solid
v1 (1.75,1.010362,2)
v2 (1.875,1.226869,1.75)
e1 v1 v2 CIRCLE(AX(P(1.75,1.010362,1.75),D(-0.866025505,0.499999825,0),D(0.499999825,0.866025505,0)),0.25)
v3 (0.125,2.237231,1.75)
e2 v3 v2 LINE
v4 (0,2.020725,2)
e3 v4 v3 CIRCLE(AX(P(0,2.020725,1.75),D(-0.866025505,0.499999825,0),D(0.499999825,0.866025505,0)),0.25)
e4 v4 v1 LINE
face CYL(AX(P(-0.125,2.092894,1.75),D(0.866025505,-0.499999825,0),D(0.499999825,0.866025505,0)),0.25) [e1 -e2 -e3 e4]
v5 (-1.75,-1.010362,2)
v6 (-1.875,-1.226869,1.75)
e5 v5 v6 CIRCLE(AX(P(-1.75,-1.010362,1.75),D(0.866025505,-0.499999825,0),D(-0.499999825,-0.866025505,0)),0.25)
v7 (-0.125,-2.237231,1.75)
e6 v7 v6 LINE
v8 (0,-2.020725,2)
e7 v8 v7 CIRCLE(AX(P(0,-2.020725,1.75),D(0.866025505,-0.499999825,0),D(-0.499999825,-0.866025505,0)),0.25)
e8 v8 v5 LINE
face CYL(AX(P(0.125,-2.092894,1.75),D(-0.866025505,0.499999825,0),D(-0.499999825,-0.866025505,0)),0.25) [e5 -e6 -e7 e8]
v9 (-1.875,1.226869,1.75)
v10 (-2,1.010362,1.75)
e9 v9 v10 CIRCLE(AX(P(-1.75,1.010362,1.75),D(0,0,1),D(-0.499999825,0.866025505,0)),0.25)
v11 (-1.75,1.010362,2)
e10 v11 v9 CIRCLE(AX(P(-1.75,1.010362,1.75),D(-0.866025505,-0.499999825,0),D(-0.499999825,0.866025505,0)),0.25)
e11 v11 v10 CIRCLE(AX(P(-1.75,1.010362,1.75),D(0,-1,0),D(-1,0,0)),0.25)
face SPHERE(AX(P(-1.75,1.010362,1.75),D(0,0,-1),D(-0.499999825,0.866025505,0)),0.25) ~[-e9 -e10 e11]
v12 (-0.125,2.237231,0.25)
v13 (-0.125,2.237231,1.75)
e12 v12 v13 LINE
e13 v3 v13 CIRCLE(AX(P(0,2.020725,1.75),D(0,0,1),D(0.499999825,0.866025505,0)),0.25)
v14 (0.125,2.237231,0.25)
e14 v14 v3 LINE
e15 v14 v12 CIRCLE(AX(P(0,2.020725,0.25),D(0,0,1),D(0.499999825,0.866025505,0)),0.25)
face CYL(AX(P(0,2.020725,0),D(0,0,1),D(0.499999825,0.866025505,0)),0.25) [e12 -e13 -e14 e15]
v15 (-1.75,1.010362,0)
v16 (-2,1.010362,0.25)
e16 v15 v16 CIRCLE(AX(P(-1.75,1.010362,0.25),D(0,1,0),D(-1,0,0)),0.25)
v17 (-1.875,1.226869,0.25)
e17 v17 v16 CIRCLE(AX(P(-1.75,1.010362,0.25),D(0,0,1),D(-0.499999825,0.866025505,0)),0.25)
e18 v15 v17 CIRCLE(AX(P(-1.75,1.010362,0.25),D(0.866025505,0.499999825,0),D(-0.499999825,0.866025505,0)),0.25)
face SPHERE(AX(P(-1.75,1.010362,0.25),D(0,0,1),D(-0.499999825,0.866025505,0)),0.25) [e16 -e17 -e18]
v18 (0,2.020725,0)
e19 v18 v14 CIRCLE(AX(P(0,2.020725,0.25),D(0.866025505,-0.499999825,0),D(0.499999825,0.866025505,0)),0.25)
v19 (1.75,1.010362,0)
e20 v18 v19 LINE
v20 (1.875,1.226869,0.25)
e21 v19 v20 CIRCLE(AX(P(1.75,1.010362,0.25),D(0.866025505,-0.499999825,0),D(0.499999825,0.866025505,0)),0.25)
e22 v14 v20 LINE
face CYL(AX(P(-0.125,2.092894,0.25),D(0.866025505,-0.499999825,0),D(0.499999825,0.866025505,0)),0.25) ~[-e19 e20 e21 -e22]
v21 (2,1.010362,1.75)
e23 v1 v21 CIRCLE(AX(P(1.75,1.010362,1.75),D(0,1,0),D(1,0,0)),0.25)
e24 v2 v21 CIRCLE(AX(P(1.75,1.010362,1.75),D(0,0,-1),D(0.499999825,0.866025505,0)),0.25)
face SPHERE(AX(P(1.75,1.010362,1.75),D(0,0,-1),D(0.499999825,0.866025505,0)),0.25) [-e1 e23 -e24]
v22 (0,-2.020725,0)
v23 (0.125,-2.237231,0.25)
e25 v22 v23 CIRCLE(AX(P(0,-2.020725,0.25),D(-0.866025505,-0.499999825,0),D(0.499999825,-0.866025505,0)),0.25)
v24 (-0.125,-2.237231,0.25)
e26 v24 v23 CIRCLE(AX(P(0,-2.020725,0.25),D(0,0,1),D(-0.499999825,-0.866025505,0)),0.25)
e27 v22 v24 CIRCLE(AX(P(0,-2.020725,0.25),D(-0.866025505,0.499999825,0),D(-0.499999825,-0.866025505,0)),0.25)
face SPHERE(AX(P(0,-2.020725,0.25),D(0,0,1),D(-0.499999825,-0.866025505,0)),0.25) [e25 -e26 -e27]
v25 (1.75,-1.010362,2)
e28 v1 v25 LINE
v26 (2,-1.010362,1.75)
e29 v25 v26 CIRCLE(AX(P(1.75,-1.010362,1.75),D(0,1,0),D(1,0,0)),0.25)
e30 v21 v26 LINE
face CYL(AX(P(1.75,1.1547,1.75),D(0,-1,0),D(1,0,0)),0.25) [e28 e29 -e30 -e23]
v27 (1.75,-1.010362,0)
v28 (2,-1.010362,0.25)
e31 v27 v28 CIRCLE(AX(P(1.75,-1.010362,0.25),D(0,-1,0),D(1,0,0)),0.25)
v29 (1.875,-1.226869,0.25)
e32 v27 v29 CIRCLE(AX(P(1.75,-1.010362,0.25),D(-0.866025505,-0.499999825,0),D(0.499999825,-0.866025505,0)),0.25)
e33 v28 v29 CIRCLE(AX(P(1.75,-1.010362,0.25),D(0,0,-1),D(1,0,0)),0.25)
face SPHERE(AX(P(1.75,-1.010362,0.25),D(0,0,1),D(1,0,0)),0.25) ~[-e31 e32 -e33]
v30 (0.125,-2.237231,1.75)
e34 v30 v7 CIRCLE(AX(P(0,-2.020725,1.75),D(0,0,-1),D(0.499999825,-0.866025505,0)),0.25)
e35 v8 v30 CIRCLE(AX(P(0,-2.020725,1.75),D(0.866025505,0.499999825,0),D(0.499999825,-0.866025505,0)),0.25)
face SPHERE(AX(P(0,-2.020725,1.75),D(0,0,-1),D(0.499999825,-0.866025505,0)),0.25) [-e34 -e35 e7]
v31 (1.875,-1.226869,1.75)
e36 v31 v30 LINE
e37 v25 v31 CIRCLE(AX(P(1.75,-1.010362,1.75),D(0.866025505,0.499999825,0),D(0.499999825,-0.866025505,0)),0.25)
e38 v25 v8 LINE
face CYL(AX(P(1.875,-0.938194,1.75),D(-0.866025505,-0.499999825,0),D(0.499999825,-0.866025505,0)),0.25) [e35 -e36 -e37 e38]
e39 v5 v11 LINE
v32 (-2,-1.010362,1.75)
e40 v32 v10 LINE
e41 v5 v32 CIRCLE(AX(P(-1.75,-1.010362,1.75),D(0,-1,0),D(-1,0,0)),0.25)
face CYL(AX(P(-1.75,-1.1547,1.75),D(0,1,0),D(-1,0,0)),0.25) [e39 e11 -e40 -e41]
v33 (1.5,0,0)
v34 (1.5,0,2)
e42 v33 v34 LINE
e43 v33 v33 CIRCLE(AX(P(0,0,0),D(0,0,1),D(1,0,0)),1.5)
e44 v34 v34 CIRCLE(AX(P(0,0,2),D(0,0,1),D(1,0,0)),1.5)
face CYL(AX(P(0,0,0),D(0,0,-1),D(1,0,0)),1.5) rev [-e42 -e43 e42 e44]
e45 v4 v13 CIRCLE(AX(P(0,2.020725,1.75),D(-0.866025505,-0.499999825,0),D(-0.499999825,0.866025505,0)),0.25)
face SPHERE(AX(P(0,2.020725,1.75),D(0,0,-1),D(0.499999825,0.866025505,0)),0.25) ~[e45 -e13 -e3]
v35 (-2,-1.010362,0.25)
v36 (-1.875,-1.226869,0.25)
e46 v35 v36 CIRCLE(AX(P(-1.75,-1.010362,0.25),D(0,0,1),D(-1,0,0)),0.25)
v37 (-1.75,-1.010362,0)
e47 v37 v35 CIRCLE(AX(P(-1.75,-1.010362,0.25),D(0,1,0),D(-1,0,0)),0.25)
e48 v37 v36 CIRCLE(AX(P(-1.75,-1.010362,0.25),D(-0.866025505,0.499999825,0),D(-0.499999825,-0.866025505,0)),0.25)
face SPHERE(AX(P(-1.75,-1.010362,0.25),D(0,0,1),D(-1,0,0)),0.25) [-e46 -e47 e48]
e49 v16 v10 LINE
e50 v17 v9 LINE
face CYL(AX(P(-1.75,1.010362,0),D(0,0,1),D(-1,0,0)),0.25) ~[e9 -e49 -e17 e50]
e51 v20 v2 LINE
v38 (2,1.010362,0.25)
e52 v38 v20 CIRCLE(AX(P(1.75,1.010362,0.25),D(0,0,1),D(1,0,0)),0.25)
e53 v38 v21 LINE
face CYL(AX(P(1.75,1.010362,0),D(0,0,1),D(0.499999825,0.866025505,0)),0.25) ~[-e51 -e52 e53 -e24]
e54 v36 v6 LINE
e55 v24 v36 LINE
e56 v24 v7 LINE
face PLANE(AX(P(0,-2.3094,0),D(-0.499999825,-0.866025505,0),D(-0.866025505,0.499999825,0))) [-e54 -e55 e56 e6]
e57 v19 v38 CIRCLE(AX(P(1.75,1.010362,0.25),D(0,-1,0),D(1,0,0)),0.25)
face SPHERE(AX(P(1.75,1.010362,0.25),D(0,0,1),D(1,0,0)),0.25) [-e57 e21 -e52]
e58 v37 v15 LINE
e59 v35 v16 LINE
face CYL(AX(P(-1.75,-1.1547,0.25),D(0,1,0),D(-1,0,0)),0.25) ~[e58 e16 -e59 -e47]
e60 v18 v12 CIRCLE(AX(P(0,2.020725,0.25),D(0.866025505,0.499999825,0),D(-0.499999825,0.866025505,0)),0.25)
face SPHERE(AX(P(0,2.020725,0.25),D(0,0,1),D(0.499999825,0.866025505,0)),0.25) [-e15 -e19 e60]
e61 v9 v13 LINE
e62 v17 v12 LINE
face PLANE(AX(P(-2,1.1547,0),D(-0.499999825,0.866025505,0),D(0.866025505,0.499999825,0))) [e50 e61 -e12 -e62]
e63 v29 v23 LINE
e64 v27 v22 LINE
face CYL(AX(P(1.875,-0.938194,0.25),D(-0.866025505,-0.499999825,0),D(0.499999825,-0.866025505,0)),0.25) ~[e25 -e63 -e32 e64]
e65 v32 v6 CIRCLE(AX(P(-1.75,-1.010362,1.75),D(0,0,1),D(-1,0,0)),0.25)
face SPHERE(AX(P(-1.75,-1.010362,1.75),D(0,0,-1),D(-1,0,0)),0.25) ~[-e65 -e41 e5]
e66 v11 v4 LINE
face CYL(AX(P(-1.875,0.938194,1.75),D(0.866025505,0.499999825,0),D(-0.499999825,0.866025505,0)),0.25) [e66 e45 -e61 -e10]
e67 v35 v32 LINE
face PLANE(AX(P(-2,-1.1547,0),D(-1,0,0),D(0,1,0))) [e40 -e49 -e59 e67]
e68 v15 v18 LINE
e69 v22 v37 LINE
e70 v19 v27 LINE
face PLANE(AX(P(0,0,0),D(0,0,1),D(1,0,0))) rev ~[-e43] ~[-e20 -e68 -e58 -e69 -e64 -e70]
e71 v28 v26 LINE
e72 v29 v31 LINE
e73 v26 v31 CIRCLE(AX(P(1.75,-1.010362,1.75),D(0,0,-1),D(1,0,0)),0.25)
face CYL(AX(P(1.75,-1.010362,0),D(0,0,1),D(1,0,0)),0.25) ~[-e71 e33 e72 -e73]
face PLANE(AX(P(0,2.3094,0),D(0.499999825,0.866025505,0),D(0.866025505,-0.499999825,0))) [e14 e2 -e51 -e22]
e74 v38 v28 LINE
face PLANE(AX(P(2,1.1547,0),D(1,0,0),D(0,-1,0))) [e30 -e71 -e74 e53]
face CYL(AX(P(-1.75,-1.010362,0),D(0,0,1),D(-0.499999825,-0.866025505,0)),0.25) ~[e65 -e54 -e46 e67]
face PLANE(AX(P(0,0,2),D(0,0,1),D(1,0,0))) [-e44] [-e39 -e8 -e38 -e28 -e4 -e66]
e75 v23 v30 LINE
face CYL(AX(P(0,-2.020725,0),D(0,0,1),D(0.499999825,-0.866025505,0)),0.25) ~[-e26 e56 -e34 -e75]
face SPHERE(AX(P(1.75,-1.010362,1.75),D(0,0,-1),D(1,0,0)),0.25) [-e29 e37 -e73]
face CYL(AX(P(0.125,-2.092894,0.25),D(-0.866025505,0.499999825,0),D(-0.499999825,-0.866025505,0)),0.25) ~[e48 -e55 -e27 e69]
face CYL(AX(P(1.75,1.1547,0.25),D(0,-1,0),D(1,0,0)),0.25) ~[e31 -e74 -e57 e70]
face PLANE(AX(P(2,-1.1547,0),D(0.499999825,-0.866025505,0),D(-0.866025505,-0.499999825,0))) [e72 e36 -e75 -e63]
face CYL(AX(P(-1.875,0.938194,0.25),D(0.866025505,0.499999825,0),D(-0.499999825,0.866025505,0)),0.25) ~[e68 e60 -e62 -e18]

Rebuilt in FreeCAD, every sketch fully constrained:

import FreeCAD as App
import Part
import Sketcher
Q = App.Units.Quantity


def edges_at(feature, points):
    """Names of the edges that pass closest to the given points."""
    edges = feature.Shape.Edges
    near = lambda p: min(range(len(edges)), key=lambda i: edges[i].distToShape(Part.Vertex(*p))[0])
    return sorted({f"Edge{near(p) + 1}" for p in points})

doc = App.newDocument("Part")
body = doc.addObject("PartDesign::Body", "Body")

sketch1 = doc.addObject("Sketcher::SketchObject", "Sketch")
body.addObject(sketch1)
sketch1.AttachmentSupport = (doc.XY_Plane, [""])
sketch1.MapMode = "FlatFace"
sketch1.addGeometry([
    Part.LineSegment(App.Vector(2, 1.2, 0), App.Vector(0, 2.3, 0)),
    Part.LineSegment(App.Vector(0, 2.3, 0), App.Vector(-2, 1.2, 0)),
    Part.LineSegment(App.Vector(-2, 1.2, 0), App.Vector(-2, -1.2, 0)),
    Part.LineSegment(App.Vector(-2, -1.2, 0), App.Vector(0, -2.3, 0)),
    Part.LineSegment(App.Vector(0, -2.3, 0), App.Vector(2, -1.2, 0)),
    Part.LineSegment(App.Vector(2, -1.2, 0), App.Vector(2, 1.2, 0)),
    Part.Circle(App.Vector(0, 0, 0), App.Vector(0, 0, 1), 1.5),
], False)
sketch1.addConstraint([
    Sketcher.Constraint("Coincident", 0, 2, 1, 1),
    Sketcher.Constraint("Coincident", 1, 2, 2, 1),
    Sketcher.Constraint("Coincident", 2, 2, 3, 1),
    Sketcher.Constraint("Coincident", 3, 2, 4, 1),
    Sketcher.Constraint("Coincident", 4, 2, 5, 1),
    Sketcher.Constraint("Coincident", 5, 2, 0, 1),
    Sketcher.Constraint("Vertical", 2),
    Sketcher.Constraint("Vertical", 5),
    Sketcher.Constraint("Coincident", 6, 3, -1, 1),
    Sketcher.Constraint("Symmetric", 0, 2, 3, 2, -1, 1),
    Sketcher.Constraint("Symmetric", 1, 2, 4, 2, -1, 1),
    Sketcher.Constraint("PointOnObject", 0, 2, -2),
    Sketcher.Constraint("Parallel", 0, 3),
    Sketcher.Constraint("Horizontal", 2, 2, 4, 2),
    Sketcher.Constraint("Diameter", 6, 3.0),
    Sketcher.Constraint("DistanceX", 1, 2, -1, 1, 2.0),
    Sketcher.Constraint("Angle", 0, Q("150 deg")),
    Sketcher.Constraint("DistanceY", 2, 2, 2, 1, 2.3094),
])
pad1 = doc.addObject("PartDesign::Pad", "Pad")
body.addObject(pad1)
pad1.Profile = sketch1
pad1.Length = 2
doc.recompute()

fillet = doc.addObject("PartDesign::Fillet", "Fillet")
body.addObject(fillet)
fillet.Base = (pad1, edges_at(pad1, [
    (1, 1.732, 2),
    (2, 0, 2),
    (1, -1.732, 2),
    (-1, 1.732, 2),
    (-2, 0, 2),
    (-1, -1.732, 2),
    (2, 0, 0),
    (1, 1.732, 0),
    (-1, 1.732, 0),
    (-2, 0, 0),
    (-1, -1.732, 0),
    (1, -1.732, 0),
    (0, 2.309, 1),
    (2, 1.155, 1),
    (2, -1.155, 1),
    (0, -2.309, 1),
    (-2, -1.155, 1),
    (-2, 1.155, 1),
]))
fillet.Radius = 0.25

doc.recompute()
